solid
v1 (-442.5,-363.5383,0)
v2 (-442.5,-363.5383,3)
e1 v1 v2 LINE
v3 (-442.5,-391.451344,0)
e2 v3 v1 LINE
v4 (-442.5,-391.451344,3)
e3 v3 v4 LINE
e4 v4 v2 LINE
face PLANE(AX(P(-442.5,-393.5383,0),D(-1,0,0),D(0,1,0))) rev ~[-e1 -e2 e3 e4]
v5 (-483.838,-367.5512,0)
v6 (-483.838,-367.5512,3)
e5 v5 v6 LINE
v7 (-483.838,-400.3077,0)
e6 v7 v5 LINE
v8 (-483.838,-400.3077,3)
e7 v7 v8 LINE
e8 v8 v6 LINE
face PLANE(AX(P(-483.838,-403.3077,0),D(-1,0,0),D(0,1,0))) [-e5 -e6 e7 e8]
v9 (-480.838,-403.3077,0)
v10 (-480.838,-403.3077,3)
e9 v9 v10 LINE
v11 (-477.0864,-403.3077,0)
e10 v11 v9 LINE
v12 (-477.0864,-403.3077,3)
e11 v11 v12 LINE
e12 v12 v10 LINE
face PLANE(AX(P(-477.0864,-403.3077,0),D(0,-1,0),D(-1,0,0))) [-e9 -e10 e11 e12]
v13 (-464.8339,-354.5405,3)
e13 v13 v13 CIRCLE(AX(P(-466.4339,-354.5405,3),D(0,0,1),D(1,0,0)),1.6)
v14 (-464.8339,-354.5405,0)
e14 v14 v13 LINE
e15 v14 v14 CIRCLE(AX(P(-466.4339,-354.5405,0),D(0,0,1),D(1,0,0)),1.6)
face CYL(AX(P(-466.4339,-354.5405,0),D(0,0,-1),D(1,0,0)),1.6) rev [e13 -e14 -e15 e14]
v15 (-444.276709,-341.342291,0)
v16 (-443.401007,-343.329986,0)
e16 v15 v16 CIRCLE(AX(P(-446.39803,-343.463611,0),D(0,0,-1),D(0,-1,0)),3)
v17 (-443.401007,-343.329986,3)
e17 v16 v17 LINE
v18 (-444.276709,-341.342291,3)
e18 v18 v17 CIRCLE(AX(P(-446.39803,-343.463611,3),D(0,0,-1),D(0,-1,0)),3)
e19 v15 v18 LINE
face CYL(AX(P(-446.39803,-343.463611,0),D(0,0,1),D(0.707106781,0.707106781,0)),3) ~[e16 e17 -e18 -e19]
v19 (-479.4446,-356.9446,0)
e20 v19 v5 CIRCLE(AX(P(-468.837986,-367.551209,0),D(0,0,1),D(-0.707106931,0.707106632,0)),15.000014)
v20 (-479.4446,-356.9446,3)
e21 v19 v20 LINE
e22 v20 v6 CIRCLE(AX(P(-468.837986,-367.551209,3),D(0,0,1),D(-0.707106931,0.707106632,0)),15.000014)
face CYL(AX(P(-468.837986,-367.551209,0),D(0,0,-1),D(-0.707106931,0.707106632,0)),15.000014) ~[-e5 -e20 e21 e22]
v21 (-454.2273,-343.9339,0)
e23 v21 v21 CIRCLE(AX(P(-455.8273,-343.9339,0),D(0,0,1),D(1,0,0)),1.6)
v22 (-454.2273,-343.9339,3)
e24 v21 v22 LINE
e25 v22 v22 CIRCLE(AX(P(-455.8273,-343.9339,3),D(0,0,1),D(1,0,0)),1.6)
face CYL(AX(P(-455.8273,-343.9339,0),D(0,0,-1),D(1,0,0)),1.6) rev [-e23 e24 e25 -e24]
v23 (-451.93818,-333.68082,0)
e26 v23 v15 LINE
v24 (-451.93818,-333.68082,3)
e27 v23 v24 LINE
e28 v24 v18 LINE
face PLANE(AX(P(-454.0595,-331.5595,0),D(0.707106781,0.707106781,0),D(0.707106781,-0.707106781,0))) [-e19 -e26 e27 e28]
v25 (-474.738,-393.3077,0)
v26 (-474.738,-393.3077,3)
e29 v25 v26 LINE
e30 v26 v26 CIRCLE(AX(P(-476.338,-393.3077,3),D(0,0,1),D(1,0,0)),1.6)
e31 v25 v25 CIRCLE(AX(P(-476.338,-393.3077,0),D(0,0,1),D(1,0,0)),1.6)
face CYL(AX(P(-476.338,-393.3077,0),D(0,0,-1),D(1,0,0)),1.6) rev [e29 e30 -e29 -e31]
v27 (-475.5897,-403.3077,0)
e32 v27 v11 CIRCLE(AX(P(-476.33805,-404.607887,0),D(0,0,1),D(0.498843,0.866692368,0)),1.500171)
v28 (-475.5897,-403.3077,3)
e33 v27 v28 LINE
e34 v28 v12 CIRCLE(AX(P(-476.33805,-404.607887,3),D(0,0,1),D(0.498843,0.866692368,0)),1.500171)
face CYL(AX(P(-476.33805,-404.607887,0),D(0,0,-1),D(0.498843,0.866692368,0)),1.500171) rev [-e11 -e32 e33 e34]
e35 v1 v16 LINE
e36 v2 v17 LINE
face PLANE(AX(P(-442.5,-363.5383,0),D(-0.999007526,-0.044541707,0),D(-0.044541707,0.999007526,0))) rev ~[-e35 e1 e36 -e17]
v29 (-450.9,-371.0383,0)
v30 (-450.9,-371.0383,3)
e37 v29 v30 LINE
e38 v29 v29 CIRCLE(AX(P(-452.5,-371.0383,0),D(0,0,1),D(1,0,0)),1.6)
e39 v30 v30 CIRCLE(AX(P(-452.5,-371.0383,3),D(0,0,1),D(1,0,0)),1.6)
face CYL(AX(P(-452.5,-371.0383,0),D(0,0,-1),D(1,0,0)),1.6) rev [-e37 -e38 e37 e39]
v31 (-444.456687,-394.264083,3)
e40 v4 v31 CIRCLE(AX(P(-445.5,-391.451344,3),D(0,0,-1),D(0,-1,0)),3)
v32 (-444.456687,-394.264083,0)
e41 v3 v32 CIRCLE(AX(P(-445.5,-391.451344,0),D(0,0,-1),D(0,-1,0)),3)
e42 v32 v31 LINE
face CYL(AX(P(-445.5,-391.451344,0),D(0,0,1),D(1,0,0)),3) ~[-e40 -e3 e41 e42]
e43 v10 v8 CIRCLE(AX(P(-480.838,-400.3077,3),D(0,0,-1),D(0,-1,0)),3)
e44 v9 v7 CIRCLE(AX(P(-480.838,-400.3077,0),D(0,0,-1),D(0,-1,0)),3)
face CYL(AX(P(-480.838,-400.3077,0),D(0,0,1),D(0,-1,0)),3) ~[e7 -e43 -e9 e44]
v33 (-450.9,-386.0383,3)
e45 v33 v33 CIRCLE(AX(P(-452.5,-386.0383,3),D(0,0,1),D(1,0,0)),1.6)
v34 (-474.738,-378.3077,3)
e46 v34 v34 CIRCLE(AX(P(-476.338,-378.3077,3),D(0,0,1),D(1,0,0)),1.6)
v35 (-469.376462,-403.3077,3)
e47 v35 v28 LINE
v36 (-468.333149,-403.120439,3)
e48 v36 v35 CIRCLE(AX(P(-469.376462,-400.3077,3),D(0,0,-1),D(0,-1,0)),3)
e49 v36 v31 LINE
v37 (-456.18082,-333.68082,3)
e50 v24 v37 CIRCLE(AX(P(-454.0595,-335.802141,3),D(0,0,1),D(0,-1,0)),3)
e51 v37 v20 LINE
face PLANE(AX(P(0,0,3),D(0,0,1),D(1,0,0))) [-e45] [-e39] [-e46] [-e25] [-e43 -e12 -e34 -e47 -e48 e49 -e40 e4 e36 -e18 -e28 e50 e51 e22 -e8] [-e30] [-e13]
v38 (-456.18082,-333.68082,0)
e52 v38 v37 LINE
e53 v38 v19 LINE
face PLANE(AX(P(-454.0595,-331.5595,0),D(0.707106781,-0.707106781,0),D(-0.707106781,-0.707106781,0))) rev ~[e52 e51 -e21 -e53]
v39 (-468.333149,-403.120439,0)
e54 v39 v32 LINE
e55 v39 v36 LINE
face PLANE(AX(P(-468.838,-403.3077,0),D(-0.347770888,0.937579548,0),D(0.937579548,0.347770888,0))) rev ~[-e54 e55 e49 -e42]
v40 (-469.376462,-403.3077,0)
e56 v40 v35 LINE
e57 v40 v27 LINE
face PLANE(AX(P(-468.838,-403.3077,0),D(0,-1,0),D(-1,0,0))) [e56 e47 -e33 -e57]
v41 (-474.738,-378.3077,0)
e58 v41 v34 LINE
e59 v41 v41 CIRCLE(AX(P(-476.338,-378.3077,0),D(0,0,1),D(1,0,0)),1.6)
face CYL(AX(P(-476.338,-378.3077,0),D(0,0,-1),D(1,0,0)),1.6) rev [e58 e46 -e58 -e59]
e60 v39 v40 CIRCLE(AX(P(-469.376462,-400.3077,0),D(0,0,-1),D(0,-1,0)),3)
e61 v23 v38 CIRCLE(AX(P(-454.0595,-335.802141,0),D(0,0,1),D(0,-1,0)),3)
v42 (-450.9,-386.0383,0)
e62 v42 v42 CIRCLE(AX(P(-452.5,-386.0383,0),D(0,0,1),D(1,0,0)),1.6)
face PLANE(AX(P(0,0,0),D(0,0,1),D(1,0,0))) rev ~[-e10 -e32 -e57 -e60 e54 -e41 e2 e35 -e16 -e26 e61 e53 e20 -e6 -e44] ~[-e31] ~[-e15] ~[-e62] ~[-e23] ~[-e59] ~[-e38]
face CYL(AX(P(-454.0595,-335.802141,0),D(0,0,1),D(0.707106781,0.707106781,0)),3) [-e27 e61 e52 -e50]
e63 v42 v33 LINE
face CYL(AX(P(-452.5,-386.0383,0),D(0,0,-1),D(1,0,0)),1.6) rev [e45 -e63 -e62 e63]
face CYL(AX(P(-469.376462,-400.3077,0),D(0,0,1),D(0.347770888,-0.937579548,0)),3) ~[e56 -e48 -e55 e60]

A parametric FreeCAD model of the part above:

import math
import FreeCAD as App
import Part
import Sketcher

V = App.Vector
Q = App.Units.Quantity


def edges_at(feature, points):
    """Names of the edges that pass closest to the given points."""
    edges = feature.Shape.Edges
    near = lambda p: min(range(len(edges)), key=lambda i: edges[i].distToShape(Part.Vertex(*p))[0])
    return sorted({f"Edge{near(p) + 1}" for p in points})

doc = App.newDocument("Part")
body = doc.addObject("PartDesign::Body", "Body")

# Sketch on XY plane
sketch1 = doc.addObject("Sketcher::SketchObject", "Sketch")
body.addObject(sketch1)
sketch1.AttachmentSupport = (doc.XY_Plane, [""])
sketch1.MapMode = "FlatFace"
sketch1.addGeometry(Part.LineSegment(V(-443.4529, -342.1661, 0), V(-454.0595, -331.5595, 0)), False)
sketch1.addGeometry(Part.LineSegment(V(-454.0595, -331.5595, 0), V(-479.4446, -356.9446, 0)), False)
sketch1.addGeometry(Part.ArcOfCircle(Part.Circle(V(-468.838, -367.5512, 0), V(0, 0, 1), 14.999998), math.radians(135), math.radians(180)), False)
sketch1.addGeometry(Part.LineSegment(V(-483.838, -367.5512, 0), V(-483.838, -403.3077, 0)), False)
sketch1.addGeometry(Part.LineSegment(V(-483.838, -403.3077, 0), V(-477.0864, -403.3077, 0)), False)
sketch1.addGeometry(Part.ArcOfCircle(Part.Circle(V(-476.338, -404.6077, 0), V(0, 0, 1), 1.499984), math.radians(60.074607), math.radians(119.928703)), False)
sketch1.addGeometry(Part.LineSegment(V(-475.5897, -403.3077, 0), V(-468.838, -403.3077, 0)), False)
sketch1.addGeometry(Part.LineSegment(V(-468.838, -403.3077, 0), V(-442.5, -393.5383, 0)), False)
sketch1.addGeometry(Part.LineSegment(V(-442.5, -393.5383, 0), V(-442.5, -363.5383, 0)), False)
sketch1.addGeometry(Part.LineSegment(V(-442.5, -363.5383, 0), V(-443.4529, -342.1661, 0)), False)
sketch1.addGeometry(Part.Circle(V(-476.338, -393.3077, 0), V(0, 0, 1), 1.6), False)
sketch1.addGeometry(Part.Circle(V(-476.338, -378.3077, 0), V(0, 0, 1), 1.6), False)
sketch1.addGeometry(Part.Circle(V(-452.5, -386.0383, 0), V(0, 0, 1), 1.6), False)
sketch1.addGeometry(Part.Circle(V(-466.4339, -354.5405, 0), V(0, 0, 1), 1.6), False)
sketch1.addGeometry(Part.Circle(V(-452.5, -371.0383, 0), V(0, 0, 1), 1.6), False)
sketch1.addGeometry(Part.Circle(V(-455.8273, -343.9339, 0), V(0, 0, 1), 1.6), False)
sketch1.addConstraint(Sketcher.Constraint("Coincident", 0, 2, 1, 1))
sketch1.addConstraint(Sketcher.Constraint("Tangent", 1, 2, 2, 1))
sketch1.addConstraint(Sketcher.Constraint("Tangent", 2, 2, 3, 1))
sketch1.addConstraint(Sketcher.Constraint("Coincident", 3, 2, 4, 1))
sketch1.addConstraint(Sketcher.Constraint("Coincident", 4, 2, 5, 2))
sketch1.addConstraint(Sketcher.Constraint("Coincident", 5, 1, 6, 1))
sketch1.addConstraint(Sketcher.Constraint("Coincident", 6, 2, 7, 1))
sketch1.addConstraint(Sketcher.Constraint("Coincident", 7, 2, 8, 1))
sketch1.addConstraint(Sketcher.Constraint("Coincident", 8, 2, 9, 1))
sketch1.addConstraint(Sketcher.Constraint("Coincident", 9, 2, 0, 1))
sketch1.addConstraint(Sketcher.Constraint("Vertical", 3))
sketch1.addConstraint(Sketcher.Constraint("Horizontal", 4))
sketch1.addConstraint(Sketcher.Constraint("Horizontal", 6))
sketch1.addConstraint(Sketcher.Constraint("Vertical", 8))
sketch1.addConstraint(Sketcher.Constraint("Equal", 10, 11))
sketch1.addConstraint(Sketcher.Constraint("Equal", 11, 12))
sketch1.addConstraint(Sketcher.Constraint("Equal", 12, 13))
sketch1.addConstraint(Sketcher.Constraint("Equal", 13, 14))
sketch1.addConstraint(Sketcher.Constraint("Equal", 14, 15))
sketch1.addConstraint(Sketcher.Constraint("Perpendicular", 0, 1))
sketch1.addConstraint(Sketcher.Constraint("Horizontal", 4, 2, 5, 1))
sketch1.addConstraint(Sketcher.Constraint("Vertical", 5, 3, 10, 3))
sketch1.addConstraint(Sketcher.Constraint("Vertical", 10, 3, 11, 3))
sketch1.addConstraint(Sketcher.Constraint("Vertical", 12, 3, 14, 3))
sketch1.addConstraint(Sketcher.Constraint("Vertical", 2, 3, 6, 2))
sketch1.addConstraint(Sketcher.Constraint("Equal", 4, 6))
sketch1.addConstraint(Sketcher.Constraint("Radius", 2, 15.0))
sketch1.addConstraint(Sketcher.Constraint("Diameter", 10, 3.2))
sketch1.addConstraint(Sketcher.Constraint("Radius", 5, 1.5))
sketch1.addConstraint(Sketcher.Constraint("Angle", 0, Q("135 deg")))
sketch1.addConstraint(Sketcher.Constraint("Distance", 0, 15.0))
sketch1.addConstraint(Sketcher.Constraint("DistanceY", 10, 3, 11, 3, 15.0))
sketch1.addConstraint(Sketcher.Constraint("DistanceY", 12, 3, 14, 3, 15.0))
sketch1.addConstraint(Sketcher.Constraint("DistanceY", 3, 2, 10, 3, 10.0))
sketch1.addConstraint(Sketcher.Constraint("DistanceX", 12, 3, 7, 2, 10.0))
sketch1.addConstraint(Sketcher.Constraint("DistanceY", 5, 3, 3, 2, 1.3))
sketch1.addConstraint(Sketcher.Constraint("DistanceY", 7, 2, 12, 3, 7.5))
sketch1.addConstraint(Sketcher.Constraint("DistanceY", 14, 3, 8, 2, 7.5))
sketch1.addConstraint(Sketcher.Constraint("Distance", 1, 35.9))
sketch1.addConstraint(Sketcher.Constraint("DistanceX", 12, 3, -1, 1, 452.5))
sketch1.addConstraint(Sketcher.Constraint("Angle", 7, Q("20.351 deg")))
sketch1.addConstraint(Sketcher.Constraint("DistanceY", 3, 2, 3, 1, 35.7565))
sketch1.addConstraint(Sketcher.Constraint("DistanceX", 2, 3, -1, 1, 468.838))
sketch1.addConstraint(Sketcher.Constraint("DistanceX", 13, 3, -1, 1, 466.434))
sketch1.addConstraint(Sketcher.Constraint("DistanceY", 15, 3, -1, 1, 343.934))
sketch1.addConstraint(Sketcher.Constraint("DistanceY", 9, 2, -1, 1, 342.166))
sketch1.addConstraint(Sketcher.Constraint("DistanceY", 13, 3, 0, 2, 22.981))
sketch1.addConstraint(Sketcher.Constraint("DistanceX", 15, 3, -1, 1, 455.8273))
pad1 = doc.addObject("PartDesign::Pad", "Pad")
body.addObject(pad1)
pad1.Profile = sketch1
pad1.Length = 3
doc.recompute()

fillet = doc.addObject("PartDesign::Fillet", "Fillet")
body.addObject(fillet)
fillet.Base = (pad1, edges_at(pad1, [
    (-483.838, -403.308, 1.5),
    (-468.838, -403.308, 1.5),
    (-442.5, -393.538, 1.5),
    (-442.5, -363.538, 1.5),
    (-443.453, -342.166, 1.5),
    (-454.06, -331.56, 1.5),
]))
fillet.Radius = 3

doc.recompute()
